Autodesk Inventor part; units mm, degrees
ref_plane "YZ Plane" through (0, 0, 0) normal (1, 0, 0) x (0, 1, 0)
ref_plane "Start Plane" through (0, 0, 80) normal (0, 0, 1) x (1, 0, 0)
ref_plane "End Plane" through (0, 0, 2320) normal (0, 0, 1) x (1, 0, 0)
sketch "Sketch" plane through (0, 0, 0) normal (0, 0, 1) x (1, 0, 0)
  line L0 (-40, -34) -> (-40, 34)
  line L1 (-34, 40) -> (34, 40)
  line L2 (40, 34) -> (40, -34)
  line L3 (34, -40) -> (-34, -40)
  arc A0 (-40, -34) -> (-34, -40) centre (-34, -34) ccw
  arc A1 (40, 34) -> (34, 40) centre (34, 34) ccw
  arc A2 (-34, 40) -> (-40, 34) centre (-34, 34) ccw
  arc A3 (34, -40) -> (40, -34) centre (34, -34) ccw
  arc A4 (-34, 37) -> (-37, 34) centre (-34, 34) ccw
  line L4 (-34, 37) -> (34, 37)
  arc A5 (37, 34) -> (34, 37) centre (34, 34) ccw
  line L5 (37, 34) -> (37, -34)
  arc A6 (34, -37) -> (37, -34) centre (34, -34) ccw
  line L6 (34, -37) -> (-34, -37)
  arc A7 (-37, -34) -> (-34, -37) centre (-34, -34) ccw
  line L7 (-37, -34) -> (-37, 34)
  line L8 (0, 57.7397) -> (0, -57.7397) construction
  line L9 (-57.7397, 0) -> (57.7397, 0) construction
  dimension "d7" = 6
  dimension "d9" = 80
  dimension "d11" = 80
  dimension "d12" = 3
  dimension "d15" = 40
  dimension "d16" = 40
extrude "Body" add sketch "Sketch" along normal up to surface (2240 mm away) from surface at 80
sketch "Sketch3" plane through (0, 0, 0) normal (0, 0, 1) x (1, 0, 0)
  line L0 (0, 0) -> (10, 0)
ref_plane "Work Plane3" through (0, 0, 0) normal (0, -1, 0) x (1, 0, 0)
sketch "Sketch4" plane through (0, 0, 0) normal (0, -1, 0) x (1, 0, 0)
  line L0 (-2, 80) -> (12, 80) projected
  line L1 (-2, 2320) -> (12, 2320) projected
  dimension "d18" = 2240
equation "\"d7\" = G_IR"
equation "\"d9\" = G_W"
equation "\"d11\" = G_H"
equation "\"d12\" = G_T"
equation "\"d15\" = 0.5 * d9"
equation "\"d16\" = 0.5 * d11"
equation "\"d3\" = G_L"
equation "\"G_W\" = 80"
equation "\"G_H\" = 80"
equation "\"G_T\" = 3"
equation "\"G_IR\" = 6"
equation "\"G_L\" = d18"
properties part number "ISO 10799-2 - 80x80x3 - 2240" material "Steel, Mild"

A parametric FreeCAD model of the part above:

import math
import FreeCAD as App
import Part
import Sketcher
Q = App.Units.Quantity

doc = App.newDocument("Part")
params = doc.addObject("Spreadsheet::Sheet", "Params")
for row, (alias, value) in enumerate([
    ("sketch1_radius", "6 mm"),
    ("sketch1_radius2", "3 mm"),
    ("pad1_length", "2240 mm"),
], start=1):
    params.set(f"A{row}", alias)
    params.set(f"B{row}", "=" + value)
    params.setAlias(f"B{row}", alias)

body = doc.addObject("PartDesign::Body", "Body")

# Sketch on XY plane
sketch1 = body.newObject("Sketcher::SketchObject", "Sketch")
sketch1.AttachmentSupport = (doc.getObject("XY_Plane"), [""])
sketch1.MapMode = "FlatFace"
sketch1.AttachmentOffset = App.Placement(App.Vector(0, 0, 80), App.Rotation())
sketch1.addGeometry([
    Part.LineSegment(App.Vector(-40, 34, 0), App.Vector(-40, -34, 0)),  # 0
    Part.ArcOfCircle(Part.Circle(App.Vector(-34, -34, 0), App.Vector(0, 0, 1), 6), math.radians(180), math.radians(270)),  # 1
    Part.LineSegment(App.Vector(-34, -40, 0), App.Vector(34, -40, 0)),  # 2
    Part.ArcOfCircle(Part.Circle(App.Vector(34, -34, 0), App.Vector(0, 0, 1), 6), math.radians(-90), math.radians(0)),  # 3
    Part.LineSegment(App.Vector(40, -34, 0), App.Vector(40, 34, 0)),  # 4
    Part.ArcOfCircle(Part.Circle(App.Vector(34, 34, 0), App.Vector(0, 0, 1), 6), math.radians(0), math.radians(90)),  # 5
    Part.LineSegment(App.Vector(34, 40, 0), App.Vector(-34, 40, 0)),  # 6
    Part.ArcOfCircle(Part.Circle(App.Vector(-34, 34, 0), App.Vector(0, 0, 1), 6), math.radians(90), math.radians(180)),  # 7
    Part.ArcOfCircle(Part.Circle(App.Vector(-34, 34, 0), App.Vector(0, 0, 1), 3), math.radians(90), math.radians(180)),  # 8
    Part.LineSegment(App.Vector(-34, 37, 0), App.Vector(34, 37, 0)),  # 9
    Part.ArcOfCircle(Part.Circle(App.Vector(34, 34, 0), App.Vector(0, 0, 1), 3), math.radians(0), math.radians(90)),  # 10
    Part.LineSegment(App.Vector(37, 34, 0), App.Vector(37, -34, 0)),  # 11
    Part.ArcOfCircle(Part.Circle(App.Vector(34, -34, 0), App.Vector(0, 0, 1), 3), math.radians(-90), math.radians(0)),  # 12
    Part.LineSegment(App.Vector(34, -37, 0), App.Vector(-34, -37, 0)),  # 13
    Part.ArcOfCircle(Part.Circle(App.Vector(-34, -34, 0), App.Vector(0, 0, 1), 3), math.radians(180), math.radians(270)),  # 14
    Part.LineSegment(App.Vector(-37, -34, 0), App.Vector(-37, 34, 0)),  # 15
], False)
sketch1.addConstraint([
    Sketcher.Constraint("Tangent", 0, 2, 1, 1),
    Sketcher.Constraint("Tangent", 1, 2, 2, 1),
    Sketcher.Constraint("Tangent", 2, 2, 3, 1),
    Sketcher.Constraint("Tangent", 3, 2, 4, 1),
    Sketcher.Constraint("Tangent", 4, 2, 5, 1),
    Sketcher.Constraint("Tangent", 5, 2, 6, 1),
    Sketcher.Constraint("Tangent", 6, 2, 7, 1),
    Sketcher.Constraint("Tangent", 7, 2, 0, 1),
    Sketcher.Constraint("Tangent", 8, 1, 9, 1),
    Sketcher.Constraint("Tangent", 9, 2, 10, 2),
    Sketcher.Constraint("Tangent", 10, 1, 11, 1),
    Sketcher.Constraint("Tangent", 11, 2, 12, 2),
    Sketcher.Constraint("Tangent", 12, 1, 13, 1),
    Sketcher.Constraint("Tangent", 13, 2, 14, 2),
    Sketcher.Constraint("Tangent", 14, 1, 15, 1),
    Sketcher.Constraint("Tangent", 15, 2, 8, 2),
    Sketcher.Constraint("Vertical", 0),
    Sketcher.Constraint("Horizontal", 2),
    Sketcher.Constraint("Vertical", 4),
    Sketcher.Constraint("Horizontal", 6),
    Sketcher.Constraint("Horizontal", 9),
    Sketcher.Constraint("Vertical", 11),
    Sketcher.Constraint("Horizontal", 13),
    Sketcher.Constraint("Vertical", 15),
    Sketcher.Constraint("Coincident", 8, 3, 7, 3),
    Sketcher.Constraint("Coincident", 10, 3, 5, 3),
    Sketcher.Constraint("Coincident", 12, 3, 3, 3),
    Sketcher.Constraint("Equal", 1, 3),
    Sketcher.Constraint("Equal", 3, 5),
    Sketcher.Constraint("Equal", 5, 7),
    Sketcher.Constraint("Equal", 12, 14),
    Sketcher.Constraint("Symmetric", 1, 3, 5, 3, -1, 1),
    Sketcher.Constraint("Equal", 13, 0),
    Sketcher.Constraint("Radius", 1, Q("6 mm")),
    Sketcher.Constraint("Radius", 8, Q("3 mm")),
    Sketcher.Constraint("DistanceX", 0, 2, -1, 1, Q("40 mm")),
])
sketch1.setExpression("Constraints[33]", "Params.sketch1_radius")
sketch1.setExpression("Constraints[34]", "Params.sketch1_radius2")
pad1 = body.newObject("PartDesign::Pad", "Pad")
pad1.Profile = sketch1
pad1.setExpression("Length", "Params.pad1_length")

doc.recompute()
